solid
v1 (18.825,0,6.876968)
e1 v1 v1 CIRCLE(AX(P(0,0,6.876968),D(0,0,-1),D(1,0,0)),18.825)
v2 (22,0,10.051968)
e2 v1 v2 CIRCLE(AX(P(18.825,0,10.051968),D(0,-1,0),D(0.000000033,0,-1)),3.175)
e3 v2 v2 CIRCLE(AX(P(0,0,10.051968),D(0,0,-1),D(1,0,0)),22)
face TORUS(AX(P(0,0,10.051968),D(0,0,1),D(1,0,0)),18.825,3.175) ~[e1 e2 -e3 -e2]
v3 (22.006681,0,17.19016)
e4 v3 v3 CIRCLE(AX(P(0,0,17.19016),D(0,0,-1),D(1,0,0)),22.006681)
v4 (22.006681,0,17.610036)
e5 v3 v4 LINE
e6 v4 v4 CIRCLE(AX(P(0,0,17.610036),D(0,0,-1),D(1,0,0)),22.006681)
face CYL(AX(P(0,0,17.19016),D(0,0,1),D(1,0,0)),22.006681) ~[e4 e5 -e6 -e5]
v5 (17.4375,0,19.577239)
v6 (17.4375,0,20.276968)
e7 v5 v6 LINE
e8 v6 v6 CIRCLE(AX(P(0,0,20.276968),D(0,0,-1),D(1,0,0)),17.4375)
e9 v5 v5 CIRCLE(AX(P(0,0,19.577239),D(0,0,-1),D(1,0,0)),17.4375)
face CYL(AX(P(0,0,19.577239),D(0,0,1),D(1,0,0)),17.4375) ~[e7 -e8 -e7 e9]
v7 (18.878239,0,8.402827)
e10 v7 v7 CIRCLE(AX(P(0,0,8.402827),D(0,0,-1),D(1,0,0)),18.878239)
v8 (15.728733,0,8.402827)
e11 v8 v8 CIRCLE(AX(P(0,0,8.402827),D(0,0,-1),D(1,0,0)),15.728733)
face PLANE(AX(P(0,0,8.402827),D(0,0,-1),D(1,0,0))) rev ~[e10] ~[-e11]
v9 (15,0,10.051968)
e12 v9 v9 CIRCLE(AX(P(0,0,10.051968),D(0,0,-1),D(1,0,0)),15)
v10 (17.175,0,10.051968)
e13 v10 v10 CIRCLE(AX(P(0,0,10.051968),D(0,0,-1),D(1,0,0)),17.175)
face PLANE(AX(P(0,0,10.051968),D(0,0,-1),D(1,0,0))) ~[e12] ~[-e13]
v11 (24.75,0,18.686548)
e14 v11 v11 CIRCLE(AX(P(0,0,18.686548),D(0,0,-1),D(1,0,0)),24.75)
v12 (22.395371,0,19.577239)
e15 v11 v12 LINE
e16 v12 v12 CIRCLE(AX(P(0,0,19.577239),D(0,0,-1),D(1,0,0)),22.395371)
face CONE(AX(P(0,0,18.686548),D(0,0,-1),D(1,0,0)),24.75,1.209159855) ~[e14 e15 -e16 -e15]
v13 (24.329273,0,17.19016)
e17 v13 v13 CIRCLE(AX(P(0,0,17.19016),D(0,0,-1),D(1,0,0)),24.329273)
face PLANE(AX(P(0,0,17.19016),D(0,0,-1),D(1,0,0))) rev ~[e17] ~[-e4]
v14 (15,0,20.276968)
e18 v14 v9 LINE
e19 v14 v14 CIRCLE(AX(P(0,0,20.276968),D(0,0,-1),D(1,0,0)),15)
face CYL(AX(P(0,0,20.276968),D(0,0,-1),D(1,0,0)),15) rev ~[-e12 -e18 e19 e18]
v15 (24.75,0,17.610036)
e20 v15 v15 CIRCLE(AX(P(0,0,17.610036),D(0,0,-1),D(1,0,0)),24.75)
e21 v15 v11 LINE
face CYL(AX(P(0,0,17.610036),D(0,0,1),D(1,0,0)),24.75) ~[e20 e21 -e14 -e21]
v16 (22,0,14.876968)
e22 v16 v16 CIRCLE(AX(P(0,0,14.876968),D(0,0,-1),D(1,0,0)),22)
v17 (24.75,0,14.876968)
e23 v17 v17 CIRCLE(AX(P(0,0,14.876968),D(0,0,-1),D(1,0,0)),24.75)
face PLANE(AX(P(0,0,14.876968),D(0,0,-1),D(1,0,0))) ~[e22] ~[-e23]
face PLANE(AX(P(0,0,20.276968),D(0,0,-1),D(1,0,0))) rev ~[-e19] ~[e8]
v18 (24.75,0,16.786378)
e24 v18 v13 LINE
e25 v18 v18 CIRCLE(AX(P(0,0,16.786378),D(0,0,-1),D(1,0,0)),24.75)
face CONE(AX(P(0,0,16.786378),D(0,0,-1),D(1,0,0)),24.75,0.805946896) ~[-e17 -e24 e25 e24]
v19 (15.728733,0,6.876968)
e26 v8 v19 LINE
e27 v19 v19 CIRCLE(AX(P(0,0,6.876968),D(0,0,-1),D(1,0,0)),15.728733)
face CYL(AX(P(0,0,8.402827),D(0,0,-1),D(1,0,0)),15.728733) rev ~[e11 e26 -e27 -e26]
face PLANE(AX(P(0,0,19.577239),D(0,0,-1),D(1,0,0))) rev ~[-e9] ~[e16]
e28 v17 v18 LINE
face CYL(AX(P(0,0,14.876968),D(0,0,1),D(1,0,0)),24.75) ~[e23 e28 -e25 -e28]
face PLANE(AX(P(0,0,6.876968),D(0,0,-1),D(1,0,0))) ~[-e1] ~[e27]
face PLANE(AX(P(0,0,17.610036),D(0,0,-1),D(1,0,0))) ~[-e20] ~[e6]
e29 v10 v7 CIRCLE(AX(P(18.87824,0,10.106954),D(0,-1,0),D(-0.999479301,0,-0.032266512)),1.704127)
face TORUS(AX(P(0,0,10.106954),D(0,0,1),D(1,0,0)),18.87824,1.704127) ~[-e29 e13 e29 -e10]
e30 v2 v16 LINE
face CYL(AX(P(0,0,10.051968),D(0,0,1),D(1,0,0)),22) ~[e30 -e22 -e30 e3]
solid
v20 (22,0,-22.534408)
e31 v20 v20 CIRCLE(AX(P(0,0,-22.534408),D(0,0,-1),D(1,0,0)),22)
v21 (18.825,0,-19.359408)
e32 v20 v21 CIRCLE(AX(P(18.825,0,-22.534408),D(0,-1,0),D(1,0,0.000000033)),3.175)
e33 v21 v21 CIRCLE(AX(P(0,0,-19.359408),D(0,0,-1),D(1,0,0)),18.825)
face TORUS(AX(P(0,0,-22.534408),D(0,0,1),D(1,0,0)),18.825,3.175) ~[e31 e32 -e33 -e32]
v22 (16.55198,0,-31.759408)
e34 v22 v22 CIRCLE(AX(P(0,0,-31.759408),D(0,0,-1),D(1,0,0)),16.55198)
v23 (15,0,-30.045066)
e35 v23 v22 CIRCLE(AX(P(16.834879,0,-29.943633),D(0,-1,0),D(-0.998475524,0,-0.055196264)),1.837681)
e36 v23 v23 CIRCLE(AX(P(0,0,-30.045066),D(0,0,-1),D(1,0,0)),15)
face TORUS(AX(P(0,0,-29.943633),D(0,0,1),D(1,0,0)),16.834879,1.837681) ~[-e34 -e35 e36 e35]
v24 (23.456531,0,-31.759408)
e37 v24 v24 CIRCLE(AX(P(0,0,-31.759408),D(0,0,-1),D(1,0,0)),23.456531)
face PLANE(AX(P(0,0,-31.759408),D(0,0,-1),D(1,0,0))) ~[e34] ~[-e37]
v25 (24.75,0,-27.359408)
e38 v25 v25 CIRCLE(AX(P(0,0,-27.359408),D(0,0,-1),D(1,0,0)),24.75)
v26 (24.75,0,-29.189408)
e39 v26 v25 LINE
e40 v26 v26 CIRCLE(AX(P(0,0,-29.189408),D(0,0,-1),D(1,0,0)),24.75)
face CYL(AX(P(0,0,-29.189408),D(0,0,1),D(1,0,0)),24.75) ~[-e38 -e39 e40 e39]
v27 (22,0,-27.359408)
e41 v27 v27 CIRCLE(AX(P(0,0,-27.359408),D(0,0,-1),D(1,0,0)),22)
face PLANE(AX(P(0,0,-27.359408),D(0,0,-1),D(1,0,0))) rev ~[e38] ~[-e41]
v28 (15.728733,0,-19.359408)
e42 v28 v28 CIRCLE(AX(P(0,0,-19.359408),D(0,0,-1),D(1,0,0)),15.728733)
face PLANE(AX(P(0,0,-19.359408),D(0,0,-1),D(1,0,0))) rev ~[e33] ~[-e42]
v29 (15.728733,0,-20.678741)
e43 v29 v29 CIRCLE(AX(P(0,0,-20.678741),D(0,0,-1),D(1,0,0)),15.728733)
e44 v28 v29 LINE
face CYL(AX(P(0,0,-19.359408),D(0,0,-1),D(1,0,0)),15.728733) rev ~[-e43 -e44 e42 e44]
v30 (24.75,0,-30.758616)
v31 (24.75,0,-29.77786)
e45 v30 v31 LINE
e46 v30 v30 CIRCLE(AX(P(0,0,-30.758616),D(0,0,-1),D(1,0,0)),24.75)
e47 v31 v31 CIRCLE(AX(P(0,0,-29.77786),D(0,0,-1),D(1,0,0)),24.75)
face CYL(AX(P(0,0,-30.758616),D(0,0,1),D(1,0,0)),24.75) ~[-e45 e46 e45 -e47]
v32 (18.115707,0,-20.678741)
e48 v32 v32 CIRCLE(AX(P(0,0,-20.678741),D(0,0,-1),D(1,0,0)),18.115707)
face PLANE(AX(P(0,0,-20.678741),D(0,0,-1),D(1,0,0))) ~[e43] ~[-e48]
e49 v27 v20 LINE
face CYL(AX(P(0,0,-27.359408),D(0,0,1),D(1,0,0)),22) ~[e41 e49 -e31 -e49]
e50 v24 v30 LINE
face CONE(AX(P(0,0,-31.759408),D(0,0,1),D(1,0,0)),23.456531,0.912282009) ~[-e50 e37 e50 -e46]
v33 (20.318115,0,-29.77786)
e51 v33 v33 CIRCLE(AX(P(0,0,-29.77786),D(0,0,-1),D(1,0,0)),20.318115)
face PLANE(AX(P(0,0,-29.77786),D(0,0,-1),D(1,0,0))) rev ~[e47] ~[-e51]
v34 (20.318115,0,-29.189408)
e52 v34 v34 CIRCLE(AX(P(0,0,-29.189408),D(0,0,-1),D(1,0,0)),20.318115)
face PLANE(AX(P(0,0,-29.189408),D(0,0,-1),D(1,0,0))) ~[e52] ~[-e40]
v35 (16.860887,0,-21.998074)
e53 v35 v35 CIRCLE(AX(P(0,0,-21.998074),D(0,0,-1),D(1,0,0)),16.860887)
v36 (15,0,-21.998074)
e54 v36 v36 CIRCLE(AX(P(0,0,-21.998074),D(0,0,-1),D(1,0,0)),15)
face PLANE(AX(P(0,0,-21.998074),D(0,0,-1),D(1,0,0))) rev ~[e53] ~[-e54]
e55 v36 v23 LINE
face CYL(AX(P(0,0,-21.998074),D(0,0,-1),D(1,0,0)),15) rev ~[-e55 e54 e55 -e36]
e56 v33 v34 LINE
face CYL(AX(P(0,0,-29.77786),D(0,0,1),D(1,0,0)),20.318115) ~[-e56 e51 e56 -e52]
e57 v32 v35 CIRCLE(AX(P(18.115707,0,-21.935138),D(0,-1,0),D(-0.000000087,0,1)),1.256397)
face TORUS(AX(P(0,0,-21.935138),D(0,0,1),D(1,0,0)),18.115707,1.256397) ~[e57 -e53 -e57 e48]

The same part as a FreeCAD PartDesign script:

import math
import FreeCAD as App
import Part
import Sketcher
from FreeCAD import Vector
Q = App.Units.Quantity

doc = App.newDocument("Part")
body = doc.addObject("PartDesign::Body", "Body")

sketch1 = body.newObject("Sketcher::SketchObject", "Sketch")
sketch1.AttachmentSupport = (doc.getObject("XZ_Plane"), [""])
sketch1.MapMode = "FlatFace"
sketch1.addGeometry([
    Part.LineSegment(Vector(17.4375, 20.276968, 0), Vector(15, 20.276968, 0)),
    Part.LineSegment(Vector(15, 20.276968, 0), Vector(15, 10.051968, 0)),
    Part.LineSegment(Vector(15, 10.051968, 0), Vector(17.175, 10.051968, 0)),
    Part.ArcOfCircle(Part.Circle(Vector(18.87824, 10.106954, 0), Vector(0, 0, 1), 1.704127), math.radians(-178.150944), math.radians(-90.00003)),
    Part.LineSegment(Vector(18.878239, 8.402827, 0), Vector(15.728733, 8.402827, 0)),
    Part.LineSegment(Vector(15.728733, 8.402827, 0), Vector(15.728733, 6.876968, 0)),
    Part.LineSegment(Vector(15.728733, 6.876968, 0), Vector(18.825, 6.876968, 0)),
    Part.ArcOfCircle(Part.Circle(Vector(18.825, 10.051968, 0), Vector(0, 0, 1), 3.175), math.radians(-89.999998), math.radians(-0.000002)),
    Part.LineSegment(Vector(22, 10.051968, 0), Vector(22, 14.876968, 0)),
    Part.LineSegment(Vector(22, 14.876968, 0), Vector(24.75, 14.876968, 0)),
    Part.LineSegment(Vector(24.75, 14.876968, 0), Vector(24.75, 16.786378, 0)),
    Part.LineSegment(Vector(24.75, 16.786378, 0), Vector(24.329273, 17.19016, 0)),
    Part.LineSegment(Vector(24.329273, 17.19016, 0), Vector(22.006681, 17.19016, 0)),
    Part.LineSegment(Vector(22.006681, 17.19016, 0), Vector(22.006681, 17.610036, 0)),
    Part.LineSegment(Vector(22.006681, 17.610036, 0), Vector(24.75, 17.610036, 0)),
    Part.LineSegment(Vector(24.75, 17.610036, 0), Vector(24.75, 18.686548, 0)),
    Part.LineSegment(Vector(24.75, 18.686548, 0), Vector(22.395371, 19.577239, 0)),
    Part.LineSegment(Vector(22.395371, 19.577239, 0), Vector(17.4375, 19.577239, 0)),
    Part.LineSegment(Vector(17.4375, 19.577239, 0), Vector(17.4375, 20.276968, 0)),
], False)
sketch1.addConstraint([
    Sketcher.Constraint("Coincident", 0, 2, 1, 1),
    Sketcher.Constraint("Coincident", 1, 2, 2, 1),
    Sketcher.Constraint("Coincident", 2, 2, 3, 1),
    Sketcher.Constraint("Tangent", 3, 2, 4, 1),
    Sketcher.Constraint("Coincident", 4, 2, 5, 1),
    Sketcher.Constraint("Coincident", 5, 2, 6, 1),
    Sketcher.Constraint("Tangent", 6, 2, 7, 1),
    Sketcher.Constraint("Tangent", 7, 2, 8, 1),
    Sketcher.Constraint("Coincident", 8, 2, 9, 1),
    Sketcher.Constraint("Coincident", 9, 2, 10, 1),
    Sketcher.Constraint("Coincident", 10, 2, 11, 1),
    Sketcher.Constraint("Coincident", 11, 2, 12, 1),
    Sketcher.Constraint("Coincident", 12, 2, 13, 1),
    Sketcher.Constraint("Coincident", 13, 2, 14, 1),
    Sketcher.Constraint("Coincident", 14, 2, 15, 1),
    Sketcher.Constraint("Coincident", 15, 2, 16, 1),
    Sketcher.Constraint("Coincident", 16, 2, 17, 1),
    Sketcher.Constraint("Coincident", 17, 2, 18, 1),
    Sketcher.Constraint("Coincident", 18, 2, 0, 1),
    Sketcher.Constraint("Horizontal", 0),
    Sketcher.Constraint("Vertical", 1),
    Sketcher.Constraint("Horizontal", 2),
    Sketcher.Constraint("Horizontal", 4),
    Sketcher.Constraint("Vertical", 5),
    Sketcher.Constraint("Horizontal", 6),
    Sketcher.Constraint("Vertical", 8),
    Sketcher.Constraint("Horizontal", 9),
    Sketcher.Constraint("Vertical", 10),
    Sketcher.Constraint("Horizontal", 12),
    Sketcher.Constraint("Vertical", 13),
    Sketcher.Constraint("Horizontal", 14),
    Sketcher.Constraint("Vertical", 15),
    Sketcher.Constraint("Horizontal", 17),
    Sketcher.Constraint("Vertical", 18),
    Sketcher.Constraint("Horizontal", 7, 3, 1, 2),
    Sketcher.Constraint("Vertical", 10, 2, 14, 2),
    Sketcher.Constraint("Radius", 7, Q("0.125 in")),
    Sketcher.Constraint("DistanceX", 0, 2, 0, 1, 2.4375),
    Sketcher.Constraint("DistanceX", 2, 1, 2, 2, 2.175),
    Sketcher.Constraint("DistanceX", 9, 1, 9, 2, 2.75),
    Sketcher.Constraint("DistanceY", 1, 2, 1, 1, 10.225),
    Sketcher.Constraint("DistanceY", 8, 1, 8, 2, 4.825),
    Sketcher.Constraint("Radius", 3, 1.704127),
    Sketcher.Constraint("DistanceX", 14, 1, 14, 2, 2.743319),
    Sketcher.Constraint("DistanceX", 17, 2, 17, 1, 4.957871),
    Sketcher.Constraint("DistanceY", 5, 2, 5, 1, 1.525859),
    Sketcher.Constraint("DistanceY", 10, 1, 10, 2, 1.90941),
    Sketcher.Constraint("DistanceY", 15, 1, 15, 2, 1.076512),
    Sketcher.Constraint("DistanceY", 18, 1, 18, 2, 0.699729),
    Sketcher.Constraint("DistanceX", -1, 1, 7, 3, 18.825),
    Sketcher.Constraint("DistanceX", -1, 1, 0, 2, 15.0),
    Sketcher.Constraint("DistanceX", 16, 2, 11, 2, 1.933902),
    Sketcher.Constraint("Distance", 11, 0.583139),
    Sketcher.Constraint("Distance", 16, 2.517461),
    Sketcher.Constraint("DistanceX", 4, 2, 4, 1, 3.149506),
    Sketcher.Constraint("DistanceY", -1, 1, 7, 3, 10.051968),
])
revolution = body.newObject("PartDesign::Revolution", "Revolution")
revolution.Profile = sketch1
revolution.ReferenceAxis = (sketch1, ["V_Axis"])
revolution.Angle = 360
body2 = doc.addObject("PartDesign::Body", "Body001")

sketch2 = body2.newObject("Sketcher::SketchObject", "Sketch001")
sketch2.AttachmentSupport = (doc.getObject("XZ_Plane001"), [""])
sketch2.MapMode = "FlatFace"
sketch2.addGeometry([
    Part.LineSegment(Vector(24.75, -29.189408, 0), Vector(24.75, -27.359408, 0)),
    Part.LineSegment(Vector(24.75, -27.359408, 0), Vector(22, -27.359408, 0)),
    Part.LineSegment(Vector(22, -27.359408, 0), Vector(22, -22.534408, 0)),
    Part.ArcOfCircle(Part.Circle(Vector(18.825, -22.534408, 0), Vector(0, 0, 1), 3.175), math.radians(0.000002), math.radians(89.999998)),
    Part.LineSegment(Vector(18.825, -19.359408, 0), Vector(15.728733, -19.359408, 0)),
    Part.LineSegment(Vector(15.728733, -19.359408, 0), Vector(15.728733, -20.678741, 0)),
    Part.LineSegment(Vector(15.728733, -20.678741, 0), Vector(18.115707, -20.678741, 0)),
    Part.ArcOfCircle(Part.Circle(Vector(18.115707, -21.935138, 0), Vector(0, 0, 1), 1.256397), math.radians(90.000005), math.radians(182.871269)),
    Part.LineSegment(Vector(16.860887, -21.998074, 0), Vector(15, -21.998074, 0)),
    Part.LineSegment(Vector(15, -21.998074, 0), Vector(15, -30.045066, 0)),
    Part.ArcOfCircle(Part.Circle(Vector(16.834879, -29.943633, 0), Vector(0, 0, 1), 1.837681), math.radians(-176.835879), math.radians(-98.855542)),
    Part.LineSegment(Vector(16.55198, -31.759408, 0), Vector(23.456531, -31.759408, 0)),
    Part.LineSegment(Vector(23.456531, -31.759408, 0), Vector(24.75, -30.758616, 0)),
    Part.LineSegment(Vector(24.75, -30.758616, 0), Vector(24.75, -29.77786, 0)),
    Part.LineSegment(Vector(24.75, -29.77786, 0), Vector(20.318115, -29.77786, 0)),
    Part.LineSegment(Vector(20.318115, -29.77786, 0), Vector(20.318115, -29.189408, 0)),
    Part.LineSegment(Vector(20.318115, -29.189408, 0), Vector(24.75, -29.189408, 0)),
], False)
sketch2.addConstraint([
    Sketcher.Constraint("Coincident", 0, 2, 1, 1),
    Sketcher.Constraint("Coincident", 1, 2, 2, 1),
    Sketcher.Constraint("Tangent", 2, 2, 3, 1),
    Sketcher.Constraint("Tangent", 3, 2, 4, 1),
    Sketcher.Constraint("Coincident", 4, 2, 5, 1),
    Sketcher.Constraint("Coincident", 5, 2, 6, 1),
    Sketcher.Constraint("Tangent", 6, 2, 7, 1),
    Sketcher.Constraint("Coincident", 7, 2, 8, 1),
    Sketcher.Constraint("Coincident", 8, 2, 9, 1),
    Sketcher.Constraint("Coincident", 9, 2, 10, 1),
    Sketcher.Constraint("Coincident", 10, 2, 11, 1),
    Sketcher.Constraint("Coincident", 11, 2, 12, 1),
    Sketcher.Constraint("Coincident", 12, 2, 13, 1),
    Sketcher.Constraint("Coincident", 13, 2, 14, 1),
    Sketcher.Constraint("Coincident", 14, 2, 15, 1),
    Sketcher.Constraint("Coincident", 15, 2, 16, 1),
    Sketcher.Constraint("Coincident", 16, 2, 0, 1),
    Sketcher.Constraint("Vertical", 0),
    Sketcher.Constraint("Horizontal", 1),
    Sketcher.Constraint("Vertical", 2),
    Sketcher.Constraint("Horizontal", 4),
    Sketcher.Constraint("Vertical", 5),
    Sketcher.Constraint("Horizontal", 6),
    Sketcher.Constraint("Horizontal", 8),
    Sketcher.Constraint("Vertical", 9),
    Sketcher.Constraint("Horizontal", 11),
    Sketcher.Constraint("Vertical", 13),
    Sketcher.Constraint("Horizontal", 14),
    Sketcher.Constraint("Vertical", 15),
    Sketcher.Constraint("Horizontal", 16),
    Sketcher.Constraint("Vertical", 0, 2, 12, 2),
    Sketcher.Constraint("Radius", 3, Q("0.125 in")),
    Sketcher.Constraint("Radius", 10, 1.837681),
    Sketcher.Constraint("DistanceX", 1, 2, 1, 1, 2.75),
    Sketcher.Constraint("DistanceY", 0, 1, 0, 2, 1.83),
    Sketcher.Constraint("DistanceY", 2, 1, 2, 2, 4.825),
    Sketcher.Constraint("Radius", 7, 1.256397),
    Sketcher.Constraint("DistanceX", 11, 1, 11, 2, 6.904551),
    Sketcher.Constraint("DistanceX", -1, 1, 3, 3, 18.825),
    Sketcher.Constraint("DistanceX", -1, 1, 8, 2, 15.0),
    Sketcher.Constraint("DistanceX", 10, 2, 10, 3, 0.282899),
    Sketcher.Constraint("DistanceY", 10, 2, 1, 2, 4.4),
    Sketcher.Constraint("DistanceX", 4, 2, 4, 1, 3.096267),
    Sketcher.Constraint("DistanceX", 6, 1, 6, 2, 2.386974),
    Sketcher.Constraint("DistanceX", 8, 2, 8, 1, 1.860887),
    Sketcher.Constraint("DistanceX", 14, 2, 14, 1, 4.431885),
    Sketcher.Constraint("DistanceY", 5, 2, 5, 1, 1.319333),
    Sketcher.Constraint("DistanceY", 9, 2, 9, 1, 8.046992),
    Sketcher.Constraint("DistanceY", 13, 1, 13, 2, 0.980756),
    Sketcher.Constraint("DistanceY", 15, 1, 15, 2, 0.588452),
    Sketcher.Constraint("DistanceY", 3, 3, -1, 1, 22.534408),
])
revolution2 = body2.newObject("PartDesign::Revolution", "Revolution001")
revolution2.Profile = sketch2
revolution2.ReferenceAxis = (sketch2, ["V_Axis"])
revolution2.Angle = 360

doc.recompute()
